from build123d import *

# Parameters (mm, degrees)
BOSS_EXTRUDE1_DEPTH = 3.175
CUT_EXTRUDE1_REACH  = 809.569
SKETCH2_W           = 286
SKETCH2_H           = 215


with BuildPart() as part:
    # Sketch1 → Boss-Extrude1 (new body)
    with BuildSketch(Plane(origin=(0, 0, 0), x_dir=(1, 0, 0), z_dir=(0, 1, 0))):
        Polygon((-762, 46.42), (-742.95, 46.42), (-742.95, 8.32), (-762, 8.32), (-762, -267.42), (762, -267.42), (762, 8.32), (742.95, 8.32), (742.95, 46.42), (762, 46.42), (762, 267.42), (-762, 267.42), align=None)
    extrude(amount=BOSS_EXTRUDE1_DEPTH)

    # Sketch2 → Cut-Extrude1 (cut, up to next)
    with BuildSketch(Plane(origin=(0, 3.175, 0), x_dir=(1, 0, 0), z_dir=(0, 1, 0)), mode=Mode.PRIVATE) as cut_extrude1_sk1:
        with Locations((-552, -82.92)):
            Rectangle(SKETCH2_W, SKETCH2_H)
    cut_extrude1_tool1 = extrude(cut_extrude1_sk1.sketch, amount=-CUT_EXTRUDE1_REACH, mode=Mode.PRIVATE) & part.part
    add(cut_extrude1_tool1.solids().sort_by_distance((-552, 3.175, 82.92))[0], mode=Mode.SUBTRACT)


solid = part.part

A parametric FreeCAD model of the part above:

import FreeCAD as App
import Part
import Sketcher
from FreeCAD import Vector
Q = App.Units.Quantity

doc = App.newDocument("Part")
body = doc.addObject("PartDesign::Body", "Body")

sketch1 = body.newObject("Sketcher::SketchObject", "Sketch")
sketch1.AttachmentSupport = (doc.getObject("XZ_Plane"), [""])
sketch1.MapMode = "FlatFace"
sketch1.addGeometry([
    Part.LineSegment(Vector(-762, -46, 0), Vector(-743, -46, 0)),
    Part.LineSegment(Vector(-743, -46, 0), Vector(-743, -8, 0)),
    Part.LineSegment(Vector(-743, -8, 0), Vector(-762, -8, 0)),
    Part.LineSegment(Vector(-762, -8, 0), Vector(-762, 267, 0)),
    Part.LineSegment(Vector(-762, 267, 0), Vector(762, 267, 0)),
    Part.LineSegment(Vector(762, 267, 0), Vector(762, -8, 0)),
    Part.LineSegment(Vector(762, -8, 0), Vector(743, -8, 0)),
    Part.LineSegment(Vector(743, -8, 0), Vector(743, -46, 0)),
    Part.LineSegment(Vector(743, -46, 0), Vector(762, -46, 0)),
    Part.LineSegment(Vector(762, -46, 0), Vector(762, -267, 0)),
    Part.LineSegment(Vector(762, -267, 0), Vector(-762, -267, 0)),
    Part.LineSegment(Vector(-762, -267, 0), Vector(-762, -46, 0)),
], False)
sketch1.addConstraint([
    Sketcher.Constraint("Coincident", 0, 2, 1, 1),
    Sketcher.Constraint("Coincident", 1, 2, 2, 1),
    Sketcher.Constraint("Coincident", 2, 2, 3, 1),
    Sketcher.Constraint("Coincident", 3, 2, 4, 1),
    Sketcher.Constraint("Coincident", 4, 2, 5, 1),
    Sketcher.Constraint("Coincident", 5, 2, 6, 1),
    Sketcher.Constraint("Coincident", 6, 2, 7, 1),
    Sketcher.Constraint("Coincident", 7, 2, 8, 1),
    Sketcher.Constraint("Coincident", 8, 2, 9, 1),
    Sketcher.Constraint("Coincident", 9, 2, 10, 1),
    Sketcher.Constraint("Coincident", 10, 2, 11, 1),
    Sketcher.Constraint("Coincident", 11, 2, 0, 1),
    Sketcher.Constraint("Horizontal", 0),
    Sketcher.Constraint("Vertical", 1),
    Sketcher.Constraint("Horizontal", 2),
    Sketcher.Constraint("Vertical", 3),
    Sketcher.Constraint("Horizontal", 4),
    Sketcher.Constraint("Vertical", 5),
    Sketcher.Constraint("Horizontal", 6),
    Sketcher.Constraint("Vertical", 7),
    Sketcher.Constraint("Horizontal", 8),
    Sketcher.Constraint("Vertical", 9),
    Sketcher.Constraint("Horizontal", 10),
    Sketcher.Constraint("Vertical", 11),
    Sketcher.Constraint("Symmetric", 3, 2, 9, 2, -1, 1),
    Sketcher.Constraint("Symmetric", 2, 2, 5, 2, -2),
    Sketcher.Constraint("Symmetric", 0, 2, 7, 2, -2),
    Sketcher.Constraint("Vertical", 3, 2, 10, 2),
    Sketcher.Constraint("DistanceX", 4, 1, 4, 2, Q("60 in")),
    Sketcher.Constraint("DistanceY", 1, 1, 1, 2, Q("1.5 in")),
    Sketcher.Constraint("DistanceX", 0, 1, 0, 2, Q("0.75 in")),
    Sketcher.Constraint("DistanceY", 3, 1, 3, 2, 275.74),
    Sketcher.Constraint("DistanceY", 9, 2, 9, 1, 221.0),
])
pad1 = body.newObject("PartDesign::Pad", "Pad")
pad1.Profile = sketch1
pad1.Length = Q("0.125 in")
pad1.Reversed = True

sketch2 = body.newObject("Sketcher::SketchObject", "Sketch001")
sketch2.AttachmentSupport = (doc.getObject("XZ_Plane"), [""])
sketch2.MapMode = "FlatFace"
sketch2.AttachmentOffset = App.Placement(Vector(0, 0, -0.125 * 25.4), App.Rotation())
sketch2.addGeometry([
    Part.LineSegment(Vector(-695, -25, 0), Vector(-695, 190, 0)),
    Part.LineSegment(Vector(-695, 190, 0), Vector(-409, 190, 0)),
    Part.LineSegment(Vector(-409, 190, 0), Vector(-409, -25, 0)),
    Part.LineSegment(Vector(-409, -25, 0), Vector(-695, -25, 0)),
], False)
sketch2.addConstraint([
    Sketcher.Constraint("Coincident", 0, 2, 1, 1),
    Sketcher.Constraint("Coincident", 1, 2, 2, 1),
    Sketcher.Constraint("Coincident", 2, 2, 3, 1),
    Sketcher.Constraint("Coincident", 3, 2, 0, 1),
    Sketcher.Constraint("Vertical", 0),
    Sketcher.Constraint("Horizontal", 1),
    Sketcher.Constraint("Vertical", 2),
    Sketcher.Constraint("Horizontal", 3),
    Sketcher.Constraint("DistanceX", 1, 1, 1, 2, 286.0),
    Sketcher.Constraint("DistanceY", 0, 1, 0, 2, 215.0),
    Sketcher.Constraint("DistanceX", 0, 2, -1, 1, 695.0),
    Sketcher.Constraint("DistanceY", -1, 1, 0, 2, 190.42),
])
pocket1 = body.newObject("PartDesign::Pocket", "Pocket")
pocket1.Profile = sketch2
pocket1.Type = "UpToFirst"
pocket1.Reversed = True

doc.recompute()
